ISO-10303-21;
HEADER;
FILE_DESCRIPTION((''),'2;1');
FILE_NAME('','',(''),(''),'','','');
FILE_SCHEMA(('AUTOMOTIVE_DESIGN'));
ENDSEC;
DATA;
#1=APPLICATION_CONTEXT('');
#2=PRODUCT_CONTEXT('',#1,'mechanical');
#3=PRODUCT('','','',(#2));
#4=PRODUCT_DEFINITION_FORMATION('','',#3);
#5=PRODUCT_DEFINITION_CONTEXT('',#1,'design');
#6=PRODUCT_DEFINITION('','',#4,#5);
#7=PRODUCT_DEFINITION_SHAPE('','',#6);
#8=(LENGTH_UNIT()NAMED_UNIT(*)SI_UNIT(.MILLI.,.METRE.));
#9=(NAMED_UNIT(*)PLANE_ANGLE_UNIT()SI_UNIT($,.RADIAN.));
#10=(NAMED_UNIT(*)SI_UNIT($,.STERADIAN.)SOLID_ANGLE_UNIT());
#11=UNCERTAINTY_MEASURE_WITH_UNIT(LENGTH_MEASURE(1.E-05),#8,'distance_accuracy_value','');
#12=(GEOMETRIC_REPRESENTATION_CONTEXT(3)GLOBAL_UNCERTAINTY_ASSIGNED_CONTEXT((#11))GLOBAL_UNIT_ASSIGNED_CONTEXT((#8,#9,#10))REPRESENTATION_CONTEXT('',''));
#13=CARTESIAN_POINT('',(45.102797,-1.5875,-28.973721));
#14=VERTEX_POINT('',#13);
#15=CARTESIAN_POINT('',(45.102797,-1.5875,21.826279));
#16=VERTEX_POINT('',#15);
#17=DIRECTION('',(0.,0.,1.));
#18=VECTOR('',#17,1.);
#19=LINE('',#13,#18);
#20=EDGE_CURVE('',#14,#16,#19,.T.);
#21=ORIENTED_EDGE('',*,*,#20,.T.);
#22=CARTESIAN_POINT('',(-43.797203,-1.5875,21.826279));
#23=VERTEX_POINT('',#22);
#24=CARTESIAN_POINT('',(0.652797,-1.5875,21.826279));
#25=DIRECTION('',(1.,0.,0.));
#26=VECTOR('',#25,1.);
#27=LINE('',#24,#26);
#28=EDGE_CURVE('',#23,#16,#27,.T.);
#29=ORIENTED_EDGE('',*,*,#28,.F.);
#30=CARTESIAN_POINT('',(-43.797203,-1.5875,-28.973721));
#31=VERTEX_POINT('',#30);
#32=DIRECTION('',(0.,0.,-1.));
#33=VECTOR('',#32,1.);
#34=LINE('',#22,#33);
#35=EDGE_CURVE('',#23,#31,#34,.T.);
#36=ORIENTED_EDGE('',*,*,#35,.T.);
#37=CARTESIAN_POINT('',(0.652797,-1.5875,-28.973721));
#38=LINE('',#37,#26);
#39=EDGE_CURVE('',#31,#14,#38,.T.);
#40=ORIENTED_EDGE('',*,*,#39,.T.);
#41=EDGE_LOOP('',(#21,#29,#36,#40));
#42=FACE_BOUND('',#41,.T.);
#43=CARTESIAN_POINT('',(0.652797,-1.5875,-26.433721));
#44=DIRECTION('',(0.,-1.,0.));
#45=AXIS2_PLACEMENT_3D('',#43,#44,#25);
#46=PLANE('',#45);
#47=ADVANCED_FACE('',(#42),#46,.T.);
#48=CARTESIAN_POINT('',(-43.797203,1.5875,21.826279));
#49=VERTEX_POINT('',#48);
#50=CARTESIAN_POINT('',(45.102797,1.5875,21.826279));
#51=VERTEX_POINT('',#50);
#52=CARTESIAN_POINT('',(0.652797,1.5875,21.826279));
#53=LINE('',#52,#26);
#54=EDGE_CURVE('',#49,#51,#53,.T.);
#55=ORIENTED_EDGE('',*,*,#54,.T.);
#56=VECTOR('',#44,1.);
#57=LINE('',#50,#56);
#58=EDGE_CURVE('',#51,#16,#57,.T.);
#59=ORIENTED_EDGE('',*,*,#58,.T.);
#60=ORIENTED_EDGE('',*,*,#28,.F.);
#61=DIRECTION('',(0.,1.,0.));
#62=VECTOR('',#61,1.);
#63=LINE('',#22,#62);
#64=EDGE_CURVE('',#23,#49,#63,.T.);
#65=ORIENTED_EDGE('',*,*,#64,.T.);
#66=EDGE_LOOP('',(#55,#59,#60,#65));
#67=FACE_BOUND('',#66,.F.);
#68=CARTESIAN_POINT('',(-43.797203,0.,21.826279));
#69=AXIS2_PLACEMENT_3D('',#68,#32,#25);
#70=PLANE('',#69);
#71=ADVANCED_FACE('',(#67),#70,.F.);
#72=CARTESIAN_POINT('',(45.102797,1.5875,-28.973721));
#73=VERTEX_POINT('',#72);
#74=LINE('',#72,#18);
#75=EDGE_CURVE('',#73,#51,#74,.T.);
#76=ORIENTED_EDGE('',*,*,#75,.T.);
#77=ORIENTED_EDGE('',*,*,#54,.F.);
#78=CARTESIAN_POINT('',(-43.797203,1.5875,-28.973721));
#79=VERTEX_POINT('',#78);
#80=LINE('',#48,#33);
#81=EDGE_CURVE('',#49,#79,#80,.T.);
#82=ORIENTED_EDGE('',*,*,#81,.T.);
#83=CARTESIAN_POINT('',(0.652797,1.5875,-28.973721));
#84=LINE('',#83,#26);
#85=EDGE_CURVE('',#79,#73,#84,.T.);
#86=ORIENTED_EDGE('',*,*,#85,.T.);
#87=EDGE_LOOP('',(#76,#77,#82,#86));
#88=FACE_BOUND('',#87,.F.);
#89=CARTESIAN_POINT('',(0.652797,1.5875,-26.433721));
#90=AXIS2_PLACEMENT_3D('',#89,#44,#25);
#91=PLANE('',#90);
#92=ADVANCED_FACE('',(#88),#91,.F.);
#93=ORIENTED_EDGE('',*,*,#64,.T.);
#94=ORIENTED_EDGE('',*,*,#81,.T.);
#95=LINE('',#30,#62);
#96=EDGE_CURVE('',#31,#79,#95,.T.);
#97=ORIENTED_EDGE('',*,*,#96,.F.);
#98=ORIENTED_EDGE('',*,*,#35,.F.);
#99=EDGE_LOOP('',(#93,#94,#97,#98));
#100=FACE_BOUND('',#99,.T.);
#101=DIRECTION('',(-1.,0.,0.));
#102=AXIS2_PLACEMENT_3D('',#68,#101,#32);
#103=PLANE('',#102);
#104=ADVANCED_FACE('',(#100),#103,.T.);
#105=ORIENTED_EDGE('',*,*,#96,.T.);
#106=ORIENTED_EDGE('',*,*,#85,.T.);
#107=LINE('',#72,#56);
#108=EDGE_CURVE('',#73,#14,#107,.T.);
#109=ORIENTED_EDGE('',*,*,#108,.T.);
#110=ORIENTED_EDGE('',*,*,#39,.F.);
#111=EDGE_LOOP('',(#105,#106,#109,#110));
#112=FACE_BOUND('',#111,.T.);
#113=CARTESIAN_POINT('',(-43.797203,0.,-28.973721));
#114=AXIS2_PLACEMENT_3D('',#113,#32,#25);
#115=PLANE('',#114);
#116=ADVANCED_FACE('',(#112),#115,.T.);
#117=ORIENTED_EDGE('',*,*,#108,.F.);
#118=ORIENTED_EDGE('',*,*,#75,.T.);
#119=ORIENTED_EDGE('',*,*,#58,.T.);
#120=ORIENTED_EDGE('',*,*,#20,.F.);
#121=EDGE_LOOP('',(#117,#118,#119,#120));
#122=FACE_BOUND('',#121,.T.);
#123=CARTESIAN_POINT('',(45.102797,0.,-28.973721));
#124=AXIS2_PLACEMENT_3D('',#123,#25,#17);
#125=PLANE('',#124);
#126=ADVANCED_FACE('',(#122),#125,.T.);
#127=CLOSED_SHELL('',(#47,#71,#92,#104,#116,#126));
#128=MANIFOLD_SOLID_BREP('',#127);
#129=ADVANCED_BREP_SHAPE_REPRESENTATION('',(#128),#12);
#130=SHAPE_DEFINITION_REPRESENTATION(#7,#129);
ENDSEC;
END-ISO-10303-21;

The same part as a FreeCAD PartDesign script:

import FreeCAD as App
import Part
import Sketcher

V = App.Vector
Q = App.Units.Quantity

doc = App.newDocument("Part")
params = doc.addObject("Spreadsheet::Sheet", "Params")
for row, (alias, value) in enumerate([
    ("sketch1_height", "2 in"),
    ("sketch1_width", "3.5 in"),
    ("pad1_length", "0.125 in"),
], start=1):
    params.set(f"A{row}", alias)
    params.set(f"B{row}", "=" + value)
    params.setAlias(f"B{row}", alias)

body = doc.addObject("PartDesign::Body", "Body")

# Sketch on XZ plane
sketch1 = body.newObject("Sketcher::SketchObject", "Sketch")
sketch1.AttachmentSupport = (doc.getObject("XZ_Plane"), [""])
sketch1.MapMode = "FlatFace"
sketch1.addGeometry(Part.LineSegment(V(-44, -29, 0), V(45, -29, 0)), False)
sketch1.addGeometry(Part.LineSegment(V(45, -29, 0), V(45, 22, 0)), False)
sketch1.addGeometry(Part.LineSegment(V(45, 22, 0), V(-44, 22, 0)), False)
sketch1.addGeometry(Part.LineSegment(V(-44, 22, 0), V(-44, -29, 0)), False)
sketch1.addConstraint(Sketcher.Constraint("Coincident", 0, 2, 1, 1))
sketch1.addConstraint(Sketcher.Constraint("Coincident", 1, 2, 2, 1))
sketch1.addConstraint(Sketcher.Constraint("Coincident", 2, 2, 3, 1))
sketch1.addConstraint(Sketcher.Constraint("Coincident", 3, 2, 0, 1))
sketch1.addConstraint(Sketcher.Constraint("Horizontal", 0))
sketch1.addConstraint(Sketcher.Constraint("Vertical", 1))
sketch1.addConstraint(Sketcher.Constraint("Horizontal", 2))
sketch1.addConstraint(Sketcher.Constraint("Vertical", 3))
sketch1.addConstraint(Sketcher.Constraint("DistanceY", 1, 1, 1, 2, Q("2 in")))
sketch1.addConstraint(Sketcher.Constraint("DistanceX", 0, 1, 0, 2, Q("3.5 in")))
sketch1.addConstraint(Sketcher.Constraint("DistanceY", 0, 2, -1, 1, Q("28.973721 mm")))
sketch1.addConstraint(Sketcher.Constraint("DistanceX", -1, 1, 0, 2, Q("45.102797 mm")))
sketch1.setExpression("Constraints[8]", "Params.sketch1_height")
sketch1.setExpression("Constraints[9]", "Params.sketch1_width")
pad1 = body.newObject("PartDesign::Pad", "Pad")
pad1.Profile = sketch1
pad1.setExpression("Length", "Params.pad1_length")
pad1.Midplane = True

doc.recompute()
